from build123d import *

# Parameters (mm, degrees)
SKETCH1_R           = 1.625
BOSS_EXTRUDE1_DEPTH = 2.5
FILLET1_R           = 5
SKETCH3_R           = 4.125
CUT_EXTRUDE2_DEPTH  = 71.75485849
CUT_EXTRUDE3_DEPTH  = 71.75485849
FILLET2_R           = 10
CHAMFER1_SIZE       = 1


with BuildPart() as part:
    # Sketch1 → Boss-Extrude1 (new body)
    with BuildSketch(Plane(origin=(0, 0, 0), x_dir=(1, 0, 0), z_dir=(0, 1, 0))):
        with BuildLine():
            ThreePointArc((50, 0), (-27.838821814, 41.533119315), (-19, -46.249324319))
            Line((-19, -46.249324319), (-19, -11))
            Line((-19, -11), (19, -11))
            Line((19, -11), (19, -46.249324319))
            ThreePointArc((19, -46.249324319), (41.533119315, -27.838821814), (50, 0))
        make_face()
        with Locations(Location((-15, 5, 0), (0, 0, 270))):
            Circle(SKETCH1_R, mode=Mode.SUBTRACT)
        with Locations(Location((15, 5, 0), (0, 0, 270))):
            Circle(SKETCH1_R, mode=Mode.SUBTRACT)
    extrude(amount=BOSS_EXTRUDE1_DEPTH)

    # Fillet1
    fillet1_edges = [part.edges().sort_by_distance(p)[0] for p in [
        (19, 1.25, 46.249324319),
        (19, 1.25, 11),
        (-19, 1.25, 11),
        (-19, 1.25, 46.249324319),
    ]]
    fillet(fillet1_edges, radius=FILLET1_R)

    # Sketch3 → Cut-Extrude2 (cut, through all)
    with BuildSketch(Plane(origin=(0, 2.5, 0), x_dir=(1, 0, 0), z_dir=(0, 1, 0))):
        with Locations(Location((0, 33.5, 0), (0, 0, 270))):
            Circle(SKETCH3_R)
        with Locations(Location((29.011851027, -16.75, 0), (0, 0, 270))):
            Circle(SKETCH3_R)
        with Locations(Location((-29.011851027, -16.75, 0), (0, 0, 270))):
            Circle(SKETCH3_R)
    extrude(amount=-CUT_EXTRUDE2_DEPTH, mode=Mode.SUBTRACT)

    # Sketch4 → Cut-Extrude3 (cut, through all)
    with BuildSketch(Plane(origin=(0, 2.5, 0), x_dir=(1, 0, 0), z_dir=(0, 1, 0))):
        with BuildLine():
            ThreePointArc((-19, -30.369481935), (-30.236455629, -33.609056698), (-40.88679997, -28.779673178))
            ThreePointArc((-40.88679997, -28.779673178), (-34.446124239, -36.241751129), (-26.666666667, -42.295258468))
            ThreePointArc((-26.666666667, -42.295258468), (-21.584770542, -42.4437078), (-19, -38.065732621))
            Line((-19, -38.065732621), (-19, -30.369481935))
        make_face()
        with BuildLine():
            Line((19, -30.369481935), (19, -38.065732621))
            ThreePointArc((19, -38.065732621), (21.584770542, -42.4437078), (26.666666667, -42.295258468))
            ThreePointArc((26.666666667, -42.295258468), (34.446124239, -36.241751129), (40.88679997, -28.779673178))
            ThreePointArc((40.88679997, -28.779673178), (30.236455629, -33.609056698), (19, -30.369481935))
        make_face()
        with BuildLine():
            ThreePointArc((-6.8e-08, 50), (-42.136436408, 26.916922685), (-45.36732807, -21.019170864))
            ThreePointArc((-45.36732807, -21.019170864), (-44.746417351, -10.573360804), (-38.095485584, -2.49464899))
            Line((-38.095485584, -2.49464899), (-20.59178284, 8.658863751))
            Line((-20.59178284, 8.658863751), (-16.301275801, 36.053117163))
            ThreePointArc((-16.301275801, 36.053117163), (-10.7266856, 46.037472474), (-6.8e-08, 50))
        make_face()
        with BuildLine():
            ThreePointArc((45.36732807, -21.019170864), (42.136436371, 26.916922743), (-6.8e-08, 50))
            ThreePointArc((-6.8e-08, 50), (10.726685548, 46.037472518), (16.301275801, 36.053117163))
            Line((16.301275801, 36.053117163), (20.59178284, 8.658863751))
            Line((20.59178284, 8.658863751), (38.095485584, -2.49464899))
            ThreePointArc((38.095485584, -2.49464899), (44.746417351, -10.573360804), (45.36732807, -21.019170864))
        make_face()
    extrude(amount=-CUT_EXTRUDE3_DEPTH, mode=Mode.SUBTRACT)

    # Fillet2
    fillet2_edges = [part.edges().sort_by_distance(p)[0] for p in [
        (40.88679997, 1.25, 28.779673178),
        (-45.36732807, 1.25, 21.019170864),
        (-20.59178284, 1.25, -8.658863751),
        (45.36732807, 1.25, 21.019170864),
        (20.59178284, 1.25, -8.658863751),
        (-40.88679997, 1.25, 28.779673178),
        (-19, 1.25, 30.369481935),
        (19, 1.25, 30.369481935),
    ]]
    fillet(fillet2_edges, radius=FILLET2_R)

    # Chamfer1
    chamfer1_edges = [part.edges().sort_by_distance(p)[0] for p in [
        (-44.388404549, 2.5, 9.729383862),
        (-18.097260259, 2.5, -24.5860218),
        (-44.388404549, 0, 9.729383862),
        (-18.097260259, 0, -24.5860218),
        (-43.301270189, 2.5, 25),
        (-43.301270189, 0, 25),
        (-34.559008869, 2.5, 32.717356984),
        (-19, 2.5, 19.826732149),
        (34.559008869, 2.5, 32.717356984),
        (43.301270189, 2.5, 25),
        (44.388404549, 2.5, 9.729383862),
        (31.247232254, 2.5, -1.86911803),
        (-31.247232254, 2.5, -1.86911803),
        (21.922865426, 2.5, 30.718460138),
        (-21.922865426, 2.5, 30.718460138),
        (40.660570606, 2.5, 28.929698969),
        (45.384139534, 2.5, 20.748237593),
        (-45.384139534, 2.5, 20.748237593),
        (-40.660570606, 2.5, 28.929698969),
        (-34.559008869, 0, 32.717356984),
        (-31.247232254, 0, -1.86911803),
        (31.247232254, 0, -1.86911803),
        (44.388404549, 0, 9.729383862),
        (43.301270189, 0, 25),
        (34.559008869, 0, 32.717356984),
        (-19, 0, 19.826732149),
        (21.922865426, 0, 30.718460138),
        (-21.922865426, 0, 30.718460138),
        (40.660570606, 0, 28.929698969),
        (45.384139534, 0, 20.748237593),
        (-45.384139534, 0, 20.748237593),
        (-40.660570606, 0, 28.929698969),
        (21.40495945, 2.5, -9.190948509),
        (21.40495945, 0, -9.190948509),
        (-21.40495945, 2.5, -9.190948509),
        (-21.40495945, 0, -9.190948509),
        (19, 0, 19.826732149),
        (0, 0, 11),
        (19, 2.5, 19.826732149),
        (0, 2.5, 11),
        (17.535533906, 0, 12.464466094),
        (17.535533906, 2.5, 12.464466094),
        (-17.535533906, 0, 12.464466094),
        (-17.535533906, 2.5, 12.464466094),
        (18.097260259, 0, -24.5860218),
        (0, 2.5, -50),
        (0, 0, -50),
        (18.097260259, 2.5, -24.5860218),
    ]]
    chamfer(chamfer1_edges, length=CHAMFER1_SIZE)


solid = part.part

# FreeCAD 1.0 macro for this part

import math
import FreeCAD as App
import Part
import Sketcher


def edges_at(feature, points):
    """Names of the edges that pass closest to the given points."""
    edges = feature.Shape.Edges
    near = lambda p: min(range(len(edges)), key=lambda i: edges[i].distToShape(Part.Vertex(*p))[0])
    return sorted({f"Edge{near(p) + 1}" for p in points})

doc = App.newDocument("Part")
body = doc.addObject("PartDesign::Body", "Body")

sketch1 = doc.addObject("Sketcher::SketchObject", "Sketch")
body.addObject(sketch1)
sketch1.AttachmentSupport = (doc.XZ_Plane, [""])
sketch1.MapMode = "FlatFace"
sketch1.addGeometry([
    Part.ArcOfCircle(Part.Circle(App.Vector(0, 0, 0), App.Vector(0, 0, 1), 50), math.radians(112.333683), math.radians(360)),
    Part.LineSegment(App.Vector(-19, 46.249324, 0), App.Vector(-19, 11, 0)),
    Part.LineSegment(App.Vector(-19, 11, 0), App.Vector(19, 11, 0)),
    Part.LineSegment(App.Vector(19, 11, 0), App.Vector(19, 46.249324, 0)),
    Part.ArcOfCircle(Part.Circle(App.Vector(0, 0, 0), App.Vector(0, 0, 1), 50), math.radians(0), math.radians(67.666317)),
    Part.Circle(App.Vector(-15, -5, 0), App.Vector(0, 0, 1), 1.625),
    Part.Circle(App.Vector(15, -5, 0), App.Vector(0, 0, 1), 1.625),
], False)
sketch1.addConstraint([
    Sketcher.Constraint("Coincident", 0, 1, 1, 1),
    Sketcher.Constraint("Coincident", 1, 2, 2, 1),
    Sketcher.Constraint("Coincident", 2, 2, 3, 1),
    Sketcher.Constraint("Coincident", 3, 2, 4, 2),
    Sketcher.Constraint("Tangent", 4, 1, 0, 2),
    Sketcher.Constraint("Vertical", 1),
    Sketcher.Constraint("Horizontal", 2),
    Sketcher.Constraint("Vertical", 3),
    Sketcher.Constraint("Coincident", 0, 3, -1, 1),
    Sketcher.Constraint("Equal", 0, 4),
    Sketcher.Constraint("Equal", 5, 6),
    Sketcher.Constraint("Symmetric", 5, 3, 6, 3, -2),
    Sketcher.Constraint("PointOnObject", 4, 1, -1),
    Sketcher.Constraint("Horizontal", 0, 1, 3, 2),
    Sketcher.Constraint("Radius", 0, 50.0),
    Sketcher.Constraint("Diameter", 5, 3.25),
    Sketcher.Constraint("DistanceX", 2, 1, 2, 2, 38.0),
    Sketcher.Constraint("DistanceX", 5, 3, -1, 1, 15.0),
    Sketcher.Constraint("DistanceY", 5, 3, -1, 1, 5.0),
    Sketcher.Constraint("DistanceY", -1, 1, 1, 2, 11.0),
])
pad1 = doc.addObject("PartDesign::Pad", "Pad")
body.addObject(pad1)
pad1.Profile = sketch1
pad1.Length = 2.5
pad1.Reversed = True
doc.recompute()

fillet = doc.addObject("PartDesign::Fillet", "Fillet")
body.addObject(fillet)
fillet.Base = (pad1, edges_at(pad1, [
    (19, 1.25, 46.249),
    (19, 1.25, 11),
    (-19, 1.25, 11),
    (-19, 1.25, 46.249),
]))
fillet.Radius = 5

sketch2 = doc.addObject("Sketcher::SketchObject", "Sketch001")
body.addObject(sketch2)
sketch2.AttachmentSupport = (doc.XZ_Plane, [""])
sketch2.MapMode = "FlatFace"
sketch2.AttachmentOffset = App.Placement(App.Vector(0, 0, -2.5), App.Rotation())
sketch2.addGeometry([
    Part.Circle(App.Vector(0, -33.5, 0), App.Vector(0, 0, 1), 4.125),
    Part.Circle(App.Vector(29.011851, 16.75, 0), App.Vector(0, 0, 1), 4.125),
    Part.Circle(App.Vector(-29.011851, 16.75, 0), App.Vector(0, 0, 1), 4.125),
], False)
sketch2.addConstraint([
    Sketcher.Constraint("Equal", 0, 1),
    Sketcher.Constraint("Equal", 1, 2),
    Sketcher.Constraint("Symmetric", 1, 3, 2, 3, -2),
    Sketcher.Constraint("PointOnObject", 0, 3, -2),
    Sketcher.Constraint("Diameter", 0, 8.25),
    Sketcher.Constraint("DistanceY", 0, 3, -1, 1, 33.5),
    Sketcher.Constraint("DistanceY", -1, 1, 1, 3, 16.75),
    Sketcher.Constraint("DistanceX", -1, 1, 1, 3, 29.011851),
])
pocket1 = doc.addObject("PartDesign::Pocket", "Pocket")
body.addObject(pocket1)
pocket1.Profile = sketch2
pocket1.Type = "ThroughAll"
pocket1.Reversed = True

sketch3 = doc.addObject("Sketcher::SketchObject", "Sketch002")
body.addObject(sketch3)
sketch3.AttachmentSupport = (doc.XZ_Plane, [""])
sketch3.MapMode = "FlatFace"
sketch3.AttachmentOffset = App.Placement(App.Vector(0, 0, -2.5), App.Rotation())
sketch3.addGeometry([
    Part.ArcOfCircle(Part.Circle(App.Vector(-29.011851, 16.75, 0), App.Vector(0, 0, 1), 16.903474), math.radians(53.67993), math.radians(134.629154)),
    Part.ArcOfCircle(Part.Circle(App.Vector(0, 0, 0), App.Vector(0, 0, 1), 50), math.radians(122.230953), math.radians(144.858797)),
    Part.ArcOfCircle(Part.Circle(App.Vector(-24, 38.065733, 0), App.Vector(0, 0, 1), 5), math.radians(0), math.radians(122.230953)),
    Part.LineSegment(App.Vector(-19, 38.065733, 0), App.Vector(-19, 30.369482, 0)),
    Part.LineSegment(App.Vector(19, 30.369482, 0), App.Vector(19, 38.065733, 0)),
    Part.ArcOfCircle(Part.Circle(App.Vector(24, 38.065733, 0), App.Vector(0, 0, 1), 5), math.radians(57.769047), math.radians(180)),
    Part.ArcOfCircle(Part.Circle(App.Vector(0, 0, 0), App.Vector(0, 0, 1), 50), math.radians(35.141203), math.radians(57.769047)),
    Part.ArcOfCircle(Part.Circle(App.Vector(29.011851, 16.75, 0), App.Vector(0, 0, 1), 16.903474), math.radians(45.370846), math.radians(126.32007)),
    Part.ArcOfCircle(Part.Circle(App.Vector(0, 0, 0), App.Vector(0, 0, 1), 50), math.radians(155.141203), math.radians(270)),
    Part.ArcOfCircle(Part.Circle(App.Vector(-29.011851, 16.75, 0), App.Vector(0, 0, 1), 16.903474), math.radians(165.370846), math.radians(237.494356)),
    Part.LineSegment(App.Vector(-38.095486, 2.494649, 0), App.Vector(-20.591783, -8.658864, 0)),
    Part.LineSegment(App.Vector(-20.591783, -8.658864, 0), App.Vector(-16.301276, -36.053117, 0)),
    Part.ArcOfCircle(Part.Circle(App.Vector(0, -33.5, 0), App.Vector(0, 0, 1), 16.5), math.radians(-171.098609), math.radians(-90)),
    Part.ArcOfCircle(Part.Circle(App.Vector(0, 0, 0), App.Vector(0, 0, 1), 50), math.radians(-90), math.radians(24.858797)),
    Part.ArcOfCircle(Part.Circle(App.Vector(0, -33.5, 0), App.Vector(0, 0, 1), 16.5), math.radians(-90), math.radians(-8.901391)),
    Part.LineSegment(App.Vector(16.301276, -36.053117, 0), App.Vector(20.591783, -8.658864, 0)),
    Part.LineSegment(App.Vector(20.591783, -8.658864, 0), App.Vector(38.095486, 2.494649, 0)),
    Part.ArcOfCircle(Part.Circle(App.Vector(29.011851, 16.75, 0), App.Vector(0, 0, 1), 16.903474), math.radians(-57.494356), math.radians(14.629154)),
], False)
sketch3.addConstraint([
    Sketcher.Constraint("Coincident", 0, 2, 1, 2),
    Sketcher.Constraint("Tangent", 1, 1, 2, 2),
    Sketcher.Constraint("Tangent", 2, 1, 3, 1),
    Sketcher.Constraint("Coincident", 3, 2, 0, 1),
    Sketcher.Constraint("Tangent", 4, 2, 5, 2),
    Sketcher.Constraint("Tangent", 5, 1, 6, 2),
    Sketcher.Constraint("Coincident", 6, 1, 7, 1),
    Sketcher.Constraint("Coincident", 7, 2, 4, 1),
    Sketcher.Constraint("Coincident", 8, 1, 9, 1),
    Sketcher.Constraint("Tangent", 9, 2, 10, 1),
    Sketcher.Constraint("Coincident", 10, 2, 11, 1),
    Sketcher.Constraint("Tangent", 11, 2, 12, 1),
    Sketcher.Constraint("Tangent", 12, 2, 8, 2),
    Sketcher.Constraint("Tangent", 13, 1, 14, 1),
    Sketcher.Constraint("Tangent", 14, 2, 15, 1),
    Sketcher.Constraint("Coincident", 15, 2, 16, 1),
    Sketcher.Constraint("Tangent", 16, 2, 17, 1),
    Sketcher.Constraint("Coincident", 17, 2, 13, 2),
    Sketcher.Constraint("Vertical", 3),
    Sketcher.Constraint("Vertical", 4),
    Sketcher.Constraint("Coincident", 1, 3, -1, 1),
    Sketcher.Constraint("Coincident", 6, 3, -1, 1),
    Sketcher.Constraint("Coincident", 8, 3, -1, 1),
    Sketcher.Constraint("Coincident", 13, 3, -1, 1),
    Sketcher.Constraint("Coincident", 9, 3, 0, 3),
    Sketcher.Constraint("Coincident", 14, 3, 12, 3),
    Sketcher.Constraint("Coincident", 17, 3, 7, 3),
    Sketcher.Constraint("Equal", 2, 5),
    Sketcher.Constraint("Equal", 1, 6),
    Sketcher.Constraint("Equal", 0, 7),
    Sketcher.Constraint("Equal", 6, 8),
    Sketcher.Constraint("Equal", 7, 9),
    Sketcher.Constraint("Equal", 8, 13),
    Sketcher.Constraint("Equal", 9, 17),
    Sketcher.Constraint("Symmetric", 0, 3, 7, 3, -2),
    Sketcher.Constraint("Symmetric", 11, 2, 14, 2, -2),
    Sketcher.Constraint("Horizontal", 2, 3, 5, 3),
    Sketcher.Constraint("Horizontal", 10, 2, 15, 2),
    Sketcher.Constraint("Radius", 1, 50.0),
    Sketcher.Constraint("Radius", 2, 5.0),
    Sketcher.Constraint("Radius", 12, 16.5),
    Sketcher.Constraint("DistanceX", 2, 3, -1, 1, 24.0),
    Sketcher.Constraint("DistanceY", -1, 1, 0, 3, 16.75),
    Sketcher.Constraint("Radius", 0, 16.903474),
    Sketcher.Constraint("DistanceY", 3, 2, 3, 1, 7.696251),
    Sketcher.Constraint("Distance", 10, 20.755251),
    Sketcher.Constraint("Distance", 11, 27.728209),
])
pocket2 = doc.addObject("PartDesign::Pocket", "Pocket001")
body.addObject(pocket2)
pocket2.Profile = sketch3
pocket2.Type = "ThroughAll"
pocket2.Reversed = True
doc.recompute()

fillet2 = doc.addObject("PartDesign::Fillet", "Fillet001")
body.addObject(fillet2)
fillet2.Base = (pocket2, edges_at(pocket2, [
    (40.887, 1.25, 28.78),
    (-45.367, 1.25, 21.019),
    (-20.592, 1.25, -8.659),
    (45.367, 1.25, 21.019),
    (20.592, 1.25, -8.659),
    (-40.887, 1.25, 28.78),
    (-19, 1.25, 30.369),
    (19, 1.25, 30.369),
]))
fillet2.Radius = 10
doc.recompute()

chamfer = doc.addObject("PartDesign::Chamfer", "Chamfer")
body.addObject(chamfer)
chamfer.Base = (fillet2, edges_at(fillet2, [
    (-44.388, 2.5, 9.729),
    (-18.097, 2.5, -24.586),
    (-44.388, 0, 9.729),
    (-18.097, 0, -24.586),
    (-43.301, 2.5, 25),
    (-43.301, 0, 25),
    (-34.559, 2.5, 32.717),
    (-19, 2.5, 19.827),
    (34.559, 2.5, 32.717),
    (43.301, 2.5, 25),
    (44.388, 2.5, 9.729),
    (31.247, 2.5, -1.869),
    (-31.247, 2.5, -1.869),
    (21.923, 2.5, 30.718),
    (-21.923, 2.5, 30.718),
    (40.661, 2.5, 28.93),
    (45.384, 2.5, 20.748),
    (-45.384, 2.5, 20.748),
    (-40.661, 2.5, 28.93),
    (-34.559, 0, 32.717),
    (-31.247, 0, -1.869),
    (31.247, 0, -1.869),
    (44.388, 0, 9.729),
    (43.301, 0, 25),
    (34.559, 0, 32.717),
    (-19, 0, 19.827),
    (21.923, 0, 30.718),
    (-21.923, 0, 30.718),
    (40.661, 0, 28.93),
    (45.384, 0, 20.748),
    (-45.384, 0, 20.748),
    (-40.661, 0, 28.93),
    (21.405, 2.5, -9.191),
    (21.405, 0, -9.191),
    (-21.405, 2.5, -9.191),
    (-21.405, 0, -9.191),
    (19, 0, 19.827),
    (0, 0, 11),
    (19, 2.5, 19.827),
    (0, 2.5, 11),
    (17.536, 0, 12.464),
    (17.536, 2.5, 12.464),
    (-17.536, 0, 12.464),
    (-17.536, 2.5, 12.464),
    (18.097, 0, -24.586),
    (-10.727, 2.5, -46.037),
    (10.727, 0, -46.037),
    (18.097, 2.5, -24.586),
]))
chamfer.Size = 1

doc.recompute()
